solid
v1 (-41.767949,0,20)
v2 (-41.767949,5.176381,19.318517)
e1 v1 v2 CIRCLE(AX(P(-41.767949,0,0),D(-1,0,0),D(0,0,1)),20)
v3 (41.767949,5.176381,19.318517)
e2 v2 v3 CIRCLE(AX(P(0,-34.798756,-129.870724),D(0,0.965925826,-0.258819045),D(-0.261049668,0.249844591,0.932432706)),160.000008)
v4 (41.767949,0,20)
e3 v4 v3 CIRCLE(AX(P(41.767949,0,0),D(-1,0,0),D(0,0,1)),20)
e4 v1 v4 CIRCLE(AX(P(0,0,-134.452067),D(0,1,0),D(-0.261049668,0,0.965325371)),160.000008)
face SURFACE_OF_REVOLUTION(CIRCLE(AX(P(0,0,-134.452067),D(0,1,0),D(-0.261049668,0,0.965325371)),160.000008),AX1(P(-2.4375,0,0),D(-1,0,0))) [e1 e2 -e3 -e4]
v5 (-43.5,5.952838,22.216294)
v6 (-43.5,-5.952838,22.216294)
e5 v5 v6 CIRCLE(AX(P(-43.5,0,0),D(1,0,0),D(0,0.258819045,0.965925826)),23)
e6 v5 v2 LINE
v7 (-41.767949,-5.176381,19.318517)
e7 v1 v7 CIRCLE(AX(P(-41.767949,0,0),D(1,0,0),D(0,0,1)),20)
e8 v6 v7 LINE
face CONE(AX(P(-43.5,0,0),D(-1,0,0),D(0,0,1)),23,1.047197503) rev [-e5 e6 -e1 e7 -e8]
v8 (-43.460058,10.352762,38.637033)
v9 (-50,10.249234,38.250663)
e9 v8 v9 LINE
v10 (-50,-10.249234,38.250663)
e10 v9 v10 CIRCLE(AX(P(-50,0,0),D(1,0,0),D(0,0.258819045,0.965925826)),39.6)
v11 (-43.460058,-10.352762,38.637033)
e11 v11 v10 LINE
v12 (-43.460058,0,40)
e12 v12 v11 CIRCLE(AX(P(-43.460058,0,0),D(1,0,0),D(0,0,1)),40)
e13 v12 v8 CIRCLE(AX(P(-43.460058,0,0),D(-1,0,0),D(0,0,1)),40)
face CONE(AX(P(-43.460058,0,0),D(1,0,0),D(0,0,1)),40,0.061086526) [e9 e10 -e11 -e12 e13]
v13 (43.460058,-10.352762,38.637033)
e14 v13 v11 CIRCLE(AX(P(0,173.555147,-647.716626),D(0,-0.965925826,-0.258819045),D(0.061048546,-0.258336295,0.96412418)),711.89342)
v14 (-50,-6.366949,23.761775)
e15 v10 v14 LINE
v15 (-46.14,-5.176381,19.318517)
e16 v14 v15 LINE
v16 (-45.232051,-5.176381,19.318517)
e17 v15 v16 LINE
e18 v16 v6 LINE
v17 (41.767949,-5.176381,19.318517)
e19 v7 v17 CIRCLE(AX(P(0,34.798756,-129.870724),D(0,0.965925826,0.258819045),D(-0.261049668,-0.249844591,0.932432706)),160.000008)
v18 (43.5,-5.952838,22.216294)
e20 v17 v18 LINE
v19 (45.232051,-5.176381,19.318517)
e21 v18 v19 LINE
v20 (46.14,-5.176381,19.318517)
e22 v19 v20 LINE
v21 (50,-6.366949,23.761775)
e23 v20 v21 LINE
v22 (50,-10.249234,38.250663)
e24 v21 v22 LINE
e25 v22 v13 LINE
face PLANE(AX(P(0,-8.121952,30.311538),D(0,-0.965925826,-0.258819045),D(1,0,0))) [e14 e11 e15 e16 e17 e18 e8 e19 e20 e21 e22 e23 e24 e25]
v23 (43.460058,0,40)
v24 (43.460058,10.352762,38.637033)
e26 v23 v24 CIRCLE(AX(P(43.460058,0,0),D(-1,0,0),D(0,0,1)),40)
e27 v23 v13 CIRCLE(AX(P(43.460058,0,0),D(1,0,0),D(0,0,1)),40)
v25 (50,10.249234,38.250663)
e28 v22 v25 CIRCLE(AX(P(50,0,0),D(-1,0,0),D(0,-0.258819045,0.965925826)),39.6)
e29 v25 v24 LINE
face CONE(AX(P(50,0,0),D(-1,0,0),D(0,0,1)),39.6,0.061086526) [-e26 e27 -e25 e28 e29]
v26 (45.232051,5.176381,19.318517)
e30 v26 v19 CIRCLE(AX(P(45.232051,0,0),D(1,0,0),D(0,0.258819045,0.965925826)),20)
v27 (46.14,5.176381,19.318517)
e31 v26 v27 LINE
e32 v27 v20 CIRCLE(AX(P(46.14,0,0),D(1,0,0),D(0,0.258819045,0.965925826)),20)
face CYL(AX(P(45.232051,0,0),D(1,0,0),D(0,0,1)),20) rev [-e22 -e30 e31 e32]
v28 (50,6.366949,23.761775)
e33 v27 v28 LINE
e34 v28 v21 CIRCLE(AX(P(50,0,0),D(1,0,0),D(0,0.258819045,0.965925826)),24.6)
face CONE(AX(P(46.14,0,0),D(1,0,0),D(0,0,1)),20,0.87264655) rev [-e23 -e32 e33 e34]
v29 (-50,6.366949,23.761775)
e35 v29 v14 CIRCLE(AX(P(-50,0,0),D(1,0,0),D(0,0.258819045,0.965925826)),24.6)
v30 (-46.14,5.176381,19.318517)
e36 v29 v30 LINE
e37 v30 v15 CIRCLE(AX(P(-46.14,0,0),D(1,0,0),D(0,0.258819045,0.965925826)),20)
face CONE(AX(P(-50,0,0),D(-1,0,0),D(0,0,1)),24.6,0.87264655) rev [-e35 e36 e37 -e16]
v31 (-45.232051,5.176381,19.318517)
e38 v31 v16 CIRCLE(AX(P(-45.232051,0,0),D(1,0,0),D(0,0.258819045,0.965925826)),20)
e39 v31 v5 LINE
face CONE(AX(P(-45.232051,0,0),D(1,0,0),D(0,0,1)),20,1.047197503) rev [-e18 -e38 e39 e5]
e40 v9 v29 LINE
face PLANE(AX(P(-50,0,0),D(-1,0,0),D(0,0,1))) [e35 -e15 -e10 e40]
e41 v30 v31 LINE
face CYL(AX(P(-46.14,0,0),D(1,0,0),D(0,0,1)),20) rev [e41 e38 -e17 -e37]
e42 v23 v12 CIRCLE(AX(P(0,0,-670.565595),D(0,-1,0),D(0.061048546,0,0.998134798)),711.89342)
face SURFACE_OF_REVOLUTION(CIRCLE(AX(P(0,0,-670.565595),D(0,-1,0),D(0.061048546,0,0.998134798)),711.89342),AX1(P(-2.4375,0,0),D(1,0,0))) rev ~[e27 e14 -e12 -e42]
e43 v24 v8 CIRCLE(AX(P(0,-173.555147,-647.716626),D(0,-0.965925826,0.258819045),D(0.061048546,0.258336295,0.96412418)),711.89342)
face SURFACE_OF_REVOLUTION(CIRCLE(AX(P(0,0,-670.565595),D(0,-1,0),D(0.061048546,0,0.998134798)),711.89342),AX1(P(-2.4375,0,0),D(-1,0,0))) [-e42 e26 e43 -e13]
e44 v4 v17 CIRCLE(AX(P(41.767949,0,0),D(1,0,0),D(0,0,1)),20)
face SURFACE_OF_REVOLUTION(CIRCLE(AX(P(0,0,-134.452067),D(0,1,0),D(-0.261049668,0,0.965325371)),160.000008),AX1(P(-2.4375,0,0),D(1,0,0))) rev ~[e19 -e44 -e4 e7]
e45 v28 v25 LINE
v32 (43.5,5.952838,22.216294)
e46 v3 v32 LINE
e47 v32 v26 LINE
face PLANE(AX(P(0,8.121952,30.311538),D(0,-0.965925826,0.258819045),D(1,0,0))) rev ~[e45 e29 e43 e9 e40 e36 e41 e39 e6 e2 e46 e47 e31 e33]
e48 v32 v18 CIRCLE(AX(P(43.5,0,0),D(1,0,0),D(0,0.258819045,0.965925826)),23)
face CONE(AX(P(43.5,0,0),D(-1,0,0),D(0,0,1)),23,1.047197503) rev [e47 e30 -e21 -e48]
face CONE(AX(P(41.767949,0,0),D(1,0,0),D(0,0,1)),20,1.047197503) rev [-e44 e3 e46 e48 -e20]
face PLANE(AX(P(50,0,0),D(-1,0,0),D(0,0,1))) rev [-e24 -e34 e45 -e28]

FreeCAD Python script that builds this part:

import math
import FreeCAD as App
import Part
import Sketcher

V = App.Vector
Q = App.Units.Quantity

doc = App.newDocument("Part")
body = doc.addObject("PartDesign::Body", "Body")

# Sketch on XZ plane
sketch1 = body.newObject("Sketcher::SketchObject", "Sketch")
sketch1.AttachmentSupport = (doc.getObject("XZ_Plane"), [""])
sketch1.MapMode = "FlatFace"
sketch1.addGeometry([
    Part.LineSegment(V(-43.460058, 40, 0), V(-50, 39.6, 0)),  # 0
    Part.LineSegment(V(-50, 39.6, 0), V(-50, 24.6, 0)),  # 1
    Part.LineSegment(V(-50, 24.6, 0), V(-46.14, 20, 0)),  # 2
    Part.LineSegment(V(-46.14, 20, 0), V(-45.232051, 20, 0)),  # 3
    Part.LineSegment(V(-45.232051, 20, 0), V(-43.5, 23, 0)),  # 4
    Part.LineSegment(V(-43.5, 23, 0), V(-41.767949, 20, 0)),  # 5
    Part.ArcOfCircle(Part.Circle(V(0, -134.452067, 0), V(0, 0, 1), 160.000008), math.radians(74.867645), math.radians(105.132355)),  # 6
    Part.LineSegment(V(41.767949, 20, 0), V(43.5, 23, 0)),  # 7
    Part.LineSegment(V(43.5, 23, 0), V(45.232051, 20, 0)),  # 8
    Part.LineSegment(V(45.232051, 20, 0), V(46.14, 20, 0)),  # 9
    Part.LineSegment(V(46.14, 20, 0), V(50, 24.6, 0)),  # 10
    Part.LineSegment(V(50, 24.6, 0), V(50, 39.6, 0)),  # 11
    Part.LineSegment(V(50, 39.6, 0), V(43.460058, 40, 0)),  # 12
    Part.ArcOfCircle(Part.Circle(V(0, -670.565595, 0), V(0, 0, 1), 711.89342), math.radians(86.5), math.radians(93.5)),  # 13
], False)
sketch1.addConstraint([
    Sketcher.Constraint("Coincident", 0, 2, 1, 1),
    Sketcher.Constraint("Coincident", 1, 2, 2, 1),
    Sketcher.Constraint("Coincident", 2, 2, 3, 1),
    Sketcher.Constraint("Coincident", 3, 2, 4, 1),
    Sketcher.Constraint("Coincident", 4, 2, 5, 1),
    Sketcher.Constraint("Coincident", 5, 2, 6, 2),
    Sketcher.Constraint("Coincident", 6, 1, 7, 1),
    Sketcher.Constraint("Coincident", 7, 2, 8, 1),
    Sketcher.Constraint("Coincident", 8, 2, 9, 1),
    Sketcher.Constraint("Coincident", 9, 2, 10, 1),
    Sketcher.Constraint("Coincident", 10, 2, 11, 1),
    Sketcher.Constraint("Coincident", 11, 2, 12, 1),
    Sketcher.Constraint("Coincident", 12, 2, 13, 1),
    Sketcher.Constraint("Coincident", 13, 2, 0, 1),
    Sketcher.Constraint("Vertical", 1),
    Sketcher.Constraint("Horizontal", 3),
    Sketcher.Constraint("Horizontal", 9),
    Sketcher.Constraint("Vertical", 11),
    Sketcher.Constraint("PointOnObject", 6, 3, -2),
    Sketcher.Constraint("PointOnObject", 13, 3, -2),
    Sketcher.Constraint("DistanceY", 1, 2, 1, 1, Q("15 mm")),
    Sketcher.Constraint("DistanceY", 11, 1, 11, 2, Q("15 mm")),
    Sketcher.Constraint("DistanceX", 0, 2, -1, 1, Q("50 mm")),
    Sketcher.Constraint("DistanceY", -1, 1, 2, 2, Q("20 mm")),
    Sketcher.Constraint("DistanceY", -1, 1, 4, 2, Q("23 mm")),
    Sketcher.Constraint("DistanceY", -1, 1, 5, 2, Q("20 mm")),
    Sketcher.Constraint("DistanceY", -1, 1, 6, 1, Q("20 mm")),
    Sketcher.Constraint("DistanceY", -1, 1, 7, 2, Q("23 mm")),
    Sketcher.Constraint("DistanceY", -1, 1, 8, 2, Q("20 mm")),
    Sketcher.Constraint("DistanceX", -1, 1, 10, 2, Q("50 mm")),
    Sketcher.Constraint("DistanceY", -1, 1, 12, 2, Q("40 mm")),
    Sketcher.Constraint("DistanceX", 3, 2, 6, 1, Q("87 mm")),
    Sketcher.Constraint("DistanceX", 4, 2, 7, 2, Q("87 mm")),
    Sketcher.Constraint("DistanceX", 5, 2, 8, 2, Q("87 mm")),
    Sketcher.Constraint("DistanceY", -1, 1, 0, 2, Q("39.6 mm")),
    Sketcher.Constraint("DistanceX", 4, 2, -1, 1, Q("43.5 mm")),
    Sketcher.Constraint("DistanceY", -1, 1, 10, 2, Q("24.6 mm")),
    Sketcher.Constraint("DistanceX", 2, 2, -1, 1, Q("46.14 mm")),
    Sketcher.Constraint("DistanceX", -1, 1, 9, 2, Q("46.14 mm")),
    Sketcher.Constraint("Radius", 6, Q("160.000008 mm")),
    Sketcher.Constraint("Radius", 13, Q("711.89342 mm")),
    Sketcher.Constraint("Distance", 4, Q("3.464102 mm")),
    Sketcher.Constraint("DistanceX", 6, 1, 12, 2, Q("1.692109 mm")),
    Sketcher.Constraint("Distance", 0, Q("6.552163 mm")),
])
revolution = body.newObject("PartDesign::Revolution", "Revolution")
revolution.Profile = sketch1
revolution.ReferenceAxis = (sketch1, ["H_Axis"])
revolution.Angle = 15

# Sketch on XZ plane
sketch2 = body.newObject("Sketcher::SketchObject", "Sketch001")
sketch2.AttachmentSupport = (doc.getObject("XZ_Plane"), [""])
sketch2.MapMode = "FlatFace"
sketch2.addGeometry([
    Part.LineSegment(V(-43.460058, 40, 0), V(-50, 39.6, 0)),  # 0
    Part.LineSegment(V(-50, 39.6, 0), V(-50, 24.6, 0)),  # 1
    Part.LineSegment(V(-50, 24.6, 0), V(-46.14, 20, 0)),  # 2
    Part.LineSegment(V(-46.14, 20, 0), V(-45.232051, 20, 0)),  # 3
    Part.LineSegment(V(-45.232051, 20, 0), V(-43.5, 23, 0)),  # 4
    Part.LineSegment(V(-43.5, 23, 0), V(-41.767949, 20, 0)),  # 5
    Part.ArcOfCircle(Part.Circle(V(0, -134.452067, 0), V(0, 0, 1), 160.000008), math.radians(74.867645), math.radians(105.132355)),  # 6
    Part.LineSegment(V(41.767949, 20, 0), V(43.5, 23, 0)),  # 7
    Part.LineSegment(V(43.5, 23, 0), V(45.232051, 20, 0)),  # 8
    Part.LineSegment(V(45.232051, 20, 0), V(46.14, 20, 0)),  # 9
    Part.LineSegment(V(46.14, 20, 0), V(50, 24.6, 0)),  # 10
    Part.LineSegment(V(50, 24.6, 0), V(50, 39.6, 0)),  # 11
    Part.LineSegment(V(50, 39.6, 0), V(43.460058, 40, 0)),  # 12
    Part.ArcOfCircle(Part.Circle(V(0, -670.565595, 0), V(0, 0, 1), 711.89342), math.radians(86.5), math.radians(93.5)),  # 13
], False)
sketch2.addConstraint([
    Sketcher.Constraint("Coincident", 0, 2, 1, 1),
    Sketcher.Constraint("Coincident", 1, 2, 2, 1),
    Sketcher.Constraint("Coincident", 2, 2, 3, 1),
    Sketcher.Constraint("Coincident", 3, 2, 4, 1),
    Sketcher.Constraint("Coincident", 4, 2, 5, 1),
    Sketcher.Constraint("Coincident", 5, 2, 6, 2),
    Sketcher.Constraint("Coincident", 6, 1, 7, 1),
    Sketcher.Constraint("Coincident", 7, 2, 8, 1),
    Sketcher.Constraint("Coincident", 8, 2, 9, 1),
    Sketcher.Constraint("Coincident", 9, 2, 10, 1),
    Sketcher.Constraint("Coincident", 10, 2, 11, 1),
    Sketcher.Constraint("Coincident", 11, 2, 12, 1),
    Sketcher.Constraint("Coincident", 12, 2, 13, 1),
    Sketcher.Constraint("Coincident", 13, 2, 0, 1),
    Sketcher.Constraint("Vertical", 1),
    Sketcher.Constraint("Horizontal", 3),
    Sketcher.Constraint("Horizontal", 9),
    Sketcher.Constraint("Vertical", 11),
    Sketcher.Constraint("PointOnObject", 6, 3, -2),
    Sketcher.Constraint("PointOnObject", 13, 3, -2),
    Sketcher.Constraint("DistanceY", 1, 2, 1, 1, Q("15 mm")),
    Sketcher.Constraint("DistanceY", 11, 1, 11, 2, Q("15 mm")),
    Sketcher.Constraint("DistanceX", 0, 2, -1, 1, Q("50 mm")),
    Sketcher.Constraint("DistanceY", -1, 1, 2, 2, Q("20 mm")),
    Sketcher.Constraint("DistanceY", -1, 1, 4, 2, Q("23 mm")),
    Sketcher.Constraint("DistanceY", -1, 1, 5, 2, Q("20 mm")),
    Sketcher.Constraint("DistanceY", -1, 1, 6, 1, Q("20 mm")),
    Sketcher.Constraint("DistanceY", -1, 1, 7, 2, Q("23 mm")),
    Sketcher.Constraint("DistanceY", -1, 1, 8, 2, Q("20 mm")),
    Sketcher.Constraint("DistanceX", -1, 1, 10, 2, Q("50 mm")),
    Sketcher.Constraint("DistanceY", -1, 1, 12, 2, Q("40 mm")),
    Sketcher.Constraint("DistanceX", 3, 2, 6, 1, Q("87 mm")),
    Sketcher.Constraint("DistanceX", 4, 2, 7, 2, Q("87 mm")),
    Sketcher.Constraint("DistanceX", 5, 2, 8, 2, Q("87 mm")),
    Sketcher.Constraint("DistanceY", -1, 1, 0, 2, Q("39.6 mm")),
    Sketcher.Constraint("DistanceX", 4, 2, -1, 1, Q("43.5 mm")),
    Sketcher.Constraint("DistanceY", -1, 1, 10, 2, Q("24.6 mm")),
    Sketcher.Constraint("DistanceX", 2, 2, -1, 1, Q("46.14 mm")),
    Sketcher.Constraint("DistanceX", -1, 1, 9, 2, Q("46.14 mm")),
    Sketcher.Constraint("Radius", 6, Q("160.000008 mm")),
    Sketcher.Constraint("Radius", 13, Q("711.89342 mm")),
    Sketcher.Constraint("Distance", 4, Q("3.464102 mm")),
    Sketcher.Constraint("DistanceX", 6, 1, 12, 2, Q("1.692109 mm")),
    Sketcher.Constraint("Distance", 0, Q("6.552163 mm")),
])
revolution2 = body.newObject("PartDesign::Revolution", "Revolution001")
revolution2.Profile = sketch2
revolution2.ReferenceAxis = (sketch2, ["H_Axis"])
revolution2.Angle = 15
revolution2.Reversed = True

doc.recompute()
